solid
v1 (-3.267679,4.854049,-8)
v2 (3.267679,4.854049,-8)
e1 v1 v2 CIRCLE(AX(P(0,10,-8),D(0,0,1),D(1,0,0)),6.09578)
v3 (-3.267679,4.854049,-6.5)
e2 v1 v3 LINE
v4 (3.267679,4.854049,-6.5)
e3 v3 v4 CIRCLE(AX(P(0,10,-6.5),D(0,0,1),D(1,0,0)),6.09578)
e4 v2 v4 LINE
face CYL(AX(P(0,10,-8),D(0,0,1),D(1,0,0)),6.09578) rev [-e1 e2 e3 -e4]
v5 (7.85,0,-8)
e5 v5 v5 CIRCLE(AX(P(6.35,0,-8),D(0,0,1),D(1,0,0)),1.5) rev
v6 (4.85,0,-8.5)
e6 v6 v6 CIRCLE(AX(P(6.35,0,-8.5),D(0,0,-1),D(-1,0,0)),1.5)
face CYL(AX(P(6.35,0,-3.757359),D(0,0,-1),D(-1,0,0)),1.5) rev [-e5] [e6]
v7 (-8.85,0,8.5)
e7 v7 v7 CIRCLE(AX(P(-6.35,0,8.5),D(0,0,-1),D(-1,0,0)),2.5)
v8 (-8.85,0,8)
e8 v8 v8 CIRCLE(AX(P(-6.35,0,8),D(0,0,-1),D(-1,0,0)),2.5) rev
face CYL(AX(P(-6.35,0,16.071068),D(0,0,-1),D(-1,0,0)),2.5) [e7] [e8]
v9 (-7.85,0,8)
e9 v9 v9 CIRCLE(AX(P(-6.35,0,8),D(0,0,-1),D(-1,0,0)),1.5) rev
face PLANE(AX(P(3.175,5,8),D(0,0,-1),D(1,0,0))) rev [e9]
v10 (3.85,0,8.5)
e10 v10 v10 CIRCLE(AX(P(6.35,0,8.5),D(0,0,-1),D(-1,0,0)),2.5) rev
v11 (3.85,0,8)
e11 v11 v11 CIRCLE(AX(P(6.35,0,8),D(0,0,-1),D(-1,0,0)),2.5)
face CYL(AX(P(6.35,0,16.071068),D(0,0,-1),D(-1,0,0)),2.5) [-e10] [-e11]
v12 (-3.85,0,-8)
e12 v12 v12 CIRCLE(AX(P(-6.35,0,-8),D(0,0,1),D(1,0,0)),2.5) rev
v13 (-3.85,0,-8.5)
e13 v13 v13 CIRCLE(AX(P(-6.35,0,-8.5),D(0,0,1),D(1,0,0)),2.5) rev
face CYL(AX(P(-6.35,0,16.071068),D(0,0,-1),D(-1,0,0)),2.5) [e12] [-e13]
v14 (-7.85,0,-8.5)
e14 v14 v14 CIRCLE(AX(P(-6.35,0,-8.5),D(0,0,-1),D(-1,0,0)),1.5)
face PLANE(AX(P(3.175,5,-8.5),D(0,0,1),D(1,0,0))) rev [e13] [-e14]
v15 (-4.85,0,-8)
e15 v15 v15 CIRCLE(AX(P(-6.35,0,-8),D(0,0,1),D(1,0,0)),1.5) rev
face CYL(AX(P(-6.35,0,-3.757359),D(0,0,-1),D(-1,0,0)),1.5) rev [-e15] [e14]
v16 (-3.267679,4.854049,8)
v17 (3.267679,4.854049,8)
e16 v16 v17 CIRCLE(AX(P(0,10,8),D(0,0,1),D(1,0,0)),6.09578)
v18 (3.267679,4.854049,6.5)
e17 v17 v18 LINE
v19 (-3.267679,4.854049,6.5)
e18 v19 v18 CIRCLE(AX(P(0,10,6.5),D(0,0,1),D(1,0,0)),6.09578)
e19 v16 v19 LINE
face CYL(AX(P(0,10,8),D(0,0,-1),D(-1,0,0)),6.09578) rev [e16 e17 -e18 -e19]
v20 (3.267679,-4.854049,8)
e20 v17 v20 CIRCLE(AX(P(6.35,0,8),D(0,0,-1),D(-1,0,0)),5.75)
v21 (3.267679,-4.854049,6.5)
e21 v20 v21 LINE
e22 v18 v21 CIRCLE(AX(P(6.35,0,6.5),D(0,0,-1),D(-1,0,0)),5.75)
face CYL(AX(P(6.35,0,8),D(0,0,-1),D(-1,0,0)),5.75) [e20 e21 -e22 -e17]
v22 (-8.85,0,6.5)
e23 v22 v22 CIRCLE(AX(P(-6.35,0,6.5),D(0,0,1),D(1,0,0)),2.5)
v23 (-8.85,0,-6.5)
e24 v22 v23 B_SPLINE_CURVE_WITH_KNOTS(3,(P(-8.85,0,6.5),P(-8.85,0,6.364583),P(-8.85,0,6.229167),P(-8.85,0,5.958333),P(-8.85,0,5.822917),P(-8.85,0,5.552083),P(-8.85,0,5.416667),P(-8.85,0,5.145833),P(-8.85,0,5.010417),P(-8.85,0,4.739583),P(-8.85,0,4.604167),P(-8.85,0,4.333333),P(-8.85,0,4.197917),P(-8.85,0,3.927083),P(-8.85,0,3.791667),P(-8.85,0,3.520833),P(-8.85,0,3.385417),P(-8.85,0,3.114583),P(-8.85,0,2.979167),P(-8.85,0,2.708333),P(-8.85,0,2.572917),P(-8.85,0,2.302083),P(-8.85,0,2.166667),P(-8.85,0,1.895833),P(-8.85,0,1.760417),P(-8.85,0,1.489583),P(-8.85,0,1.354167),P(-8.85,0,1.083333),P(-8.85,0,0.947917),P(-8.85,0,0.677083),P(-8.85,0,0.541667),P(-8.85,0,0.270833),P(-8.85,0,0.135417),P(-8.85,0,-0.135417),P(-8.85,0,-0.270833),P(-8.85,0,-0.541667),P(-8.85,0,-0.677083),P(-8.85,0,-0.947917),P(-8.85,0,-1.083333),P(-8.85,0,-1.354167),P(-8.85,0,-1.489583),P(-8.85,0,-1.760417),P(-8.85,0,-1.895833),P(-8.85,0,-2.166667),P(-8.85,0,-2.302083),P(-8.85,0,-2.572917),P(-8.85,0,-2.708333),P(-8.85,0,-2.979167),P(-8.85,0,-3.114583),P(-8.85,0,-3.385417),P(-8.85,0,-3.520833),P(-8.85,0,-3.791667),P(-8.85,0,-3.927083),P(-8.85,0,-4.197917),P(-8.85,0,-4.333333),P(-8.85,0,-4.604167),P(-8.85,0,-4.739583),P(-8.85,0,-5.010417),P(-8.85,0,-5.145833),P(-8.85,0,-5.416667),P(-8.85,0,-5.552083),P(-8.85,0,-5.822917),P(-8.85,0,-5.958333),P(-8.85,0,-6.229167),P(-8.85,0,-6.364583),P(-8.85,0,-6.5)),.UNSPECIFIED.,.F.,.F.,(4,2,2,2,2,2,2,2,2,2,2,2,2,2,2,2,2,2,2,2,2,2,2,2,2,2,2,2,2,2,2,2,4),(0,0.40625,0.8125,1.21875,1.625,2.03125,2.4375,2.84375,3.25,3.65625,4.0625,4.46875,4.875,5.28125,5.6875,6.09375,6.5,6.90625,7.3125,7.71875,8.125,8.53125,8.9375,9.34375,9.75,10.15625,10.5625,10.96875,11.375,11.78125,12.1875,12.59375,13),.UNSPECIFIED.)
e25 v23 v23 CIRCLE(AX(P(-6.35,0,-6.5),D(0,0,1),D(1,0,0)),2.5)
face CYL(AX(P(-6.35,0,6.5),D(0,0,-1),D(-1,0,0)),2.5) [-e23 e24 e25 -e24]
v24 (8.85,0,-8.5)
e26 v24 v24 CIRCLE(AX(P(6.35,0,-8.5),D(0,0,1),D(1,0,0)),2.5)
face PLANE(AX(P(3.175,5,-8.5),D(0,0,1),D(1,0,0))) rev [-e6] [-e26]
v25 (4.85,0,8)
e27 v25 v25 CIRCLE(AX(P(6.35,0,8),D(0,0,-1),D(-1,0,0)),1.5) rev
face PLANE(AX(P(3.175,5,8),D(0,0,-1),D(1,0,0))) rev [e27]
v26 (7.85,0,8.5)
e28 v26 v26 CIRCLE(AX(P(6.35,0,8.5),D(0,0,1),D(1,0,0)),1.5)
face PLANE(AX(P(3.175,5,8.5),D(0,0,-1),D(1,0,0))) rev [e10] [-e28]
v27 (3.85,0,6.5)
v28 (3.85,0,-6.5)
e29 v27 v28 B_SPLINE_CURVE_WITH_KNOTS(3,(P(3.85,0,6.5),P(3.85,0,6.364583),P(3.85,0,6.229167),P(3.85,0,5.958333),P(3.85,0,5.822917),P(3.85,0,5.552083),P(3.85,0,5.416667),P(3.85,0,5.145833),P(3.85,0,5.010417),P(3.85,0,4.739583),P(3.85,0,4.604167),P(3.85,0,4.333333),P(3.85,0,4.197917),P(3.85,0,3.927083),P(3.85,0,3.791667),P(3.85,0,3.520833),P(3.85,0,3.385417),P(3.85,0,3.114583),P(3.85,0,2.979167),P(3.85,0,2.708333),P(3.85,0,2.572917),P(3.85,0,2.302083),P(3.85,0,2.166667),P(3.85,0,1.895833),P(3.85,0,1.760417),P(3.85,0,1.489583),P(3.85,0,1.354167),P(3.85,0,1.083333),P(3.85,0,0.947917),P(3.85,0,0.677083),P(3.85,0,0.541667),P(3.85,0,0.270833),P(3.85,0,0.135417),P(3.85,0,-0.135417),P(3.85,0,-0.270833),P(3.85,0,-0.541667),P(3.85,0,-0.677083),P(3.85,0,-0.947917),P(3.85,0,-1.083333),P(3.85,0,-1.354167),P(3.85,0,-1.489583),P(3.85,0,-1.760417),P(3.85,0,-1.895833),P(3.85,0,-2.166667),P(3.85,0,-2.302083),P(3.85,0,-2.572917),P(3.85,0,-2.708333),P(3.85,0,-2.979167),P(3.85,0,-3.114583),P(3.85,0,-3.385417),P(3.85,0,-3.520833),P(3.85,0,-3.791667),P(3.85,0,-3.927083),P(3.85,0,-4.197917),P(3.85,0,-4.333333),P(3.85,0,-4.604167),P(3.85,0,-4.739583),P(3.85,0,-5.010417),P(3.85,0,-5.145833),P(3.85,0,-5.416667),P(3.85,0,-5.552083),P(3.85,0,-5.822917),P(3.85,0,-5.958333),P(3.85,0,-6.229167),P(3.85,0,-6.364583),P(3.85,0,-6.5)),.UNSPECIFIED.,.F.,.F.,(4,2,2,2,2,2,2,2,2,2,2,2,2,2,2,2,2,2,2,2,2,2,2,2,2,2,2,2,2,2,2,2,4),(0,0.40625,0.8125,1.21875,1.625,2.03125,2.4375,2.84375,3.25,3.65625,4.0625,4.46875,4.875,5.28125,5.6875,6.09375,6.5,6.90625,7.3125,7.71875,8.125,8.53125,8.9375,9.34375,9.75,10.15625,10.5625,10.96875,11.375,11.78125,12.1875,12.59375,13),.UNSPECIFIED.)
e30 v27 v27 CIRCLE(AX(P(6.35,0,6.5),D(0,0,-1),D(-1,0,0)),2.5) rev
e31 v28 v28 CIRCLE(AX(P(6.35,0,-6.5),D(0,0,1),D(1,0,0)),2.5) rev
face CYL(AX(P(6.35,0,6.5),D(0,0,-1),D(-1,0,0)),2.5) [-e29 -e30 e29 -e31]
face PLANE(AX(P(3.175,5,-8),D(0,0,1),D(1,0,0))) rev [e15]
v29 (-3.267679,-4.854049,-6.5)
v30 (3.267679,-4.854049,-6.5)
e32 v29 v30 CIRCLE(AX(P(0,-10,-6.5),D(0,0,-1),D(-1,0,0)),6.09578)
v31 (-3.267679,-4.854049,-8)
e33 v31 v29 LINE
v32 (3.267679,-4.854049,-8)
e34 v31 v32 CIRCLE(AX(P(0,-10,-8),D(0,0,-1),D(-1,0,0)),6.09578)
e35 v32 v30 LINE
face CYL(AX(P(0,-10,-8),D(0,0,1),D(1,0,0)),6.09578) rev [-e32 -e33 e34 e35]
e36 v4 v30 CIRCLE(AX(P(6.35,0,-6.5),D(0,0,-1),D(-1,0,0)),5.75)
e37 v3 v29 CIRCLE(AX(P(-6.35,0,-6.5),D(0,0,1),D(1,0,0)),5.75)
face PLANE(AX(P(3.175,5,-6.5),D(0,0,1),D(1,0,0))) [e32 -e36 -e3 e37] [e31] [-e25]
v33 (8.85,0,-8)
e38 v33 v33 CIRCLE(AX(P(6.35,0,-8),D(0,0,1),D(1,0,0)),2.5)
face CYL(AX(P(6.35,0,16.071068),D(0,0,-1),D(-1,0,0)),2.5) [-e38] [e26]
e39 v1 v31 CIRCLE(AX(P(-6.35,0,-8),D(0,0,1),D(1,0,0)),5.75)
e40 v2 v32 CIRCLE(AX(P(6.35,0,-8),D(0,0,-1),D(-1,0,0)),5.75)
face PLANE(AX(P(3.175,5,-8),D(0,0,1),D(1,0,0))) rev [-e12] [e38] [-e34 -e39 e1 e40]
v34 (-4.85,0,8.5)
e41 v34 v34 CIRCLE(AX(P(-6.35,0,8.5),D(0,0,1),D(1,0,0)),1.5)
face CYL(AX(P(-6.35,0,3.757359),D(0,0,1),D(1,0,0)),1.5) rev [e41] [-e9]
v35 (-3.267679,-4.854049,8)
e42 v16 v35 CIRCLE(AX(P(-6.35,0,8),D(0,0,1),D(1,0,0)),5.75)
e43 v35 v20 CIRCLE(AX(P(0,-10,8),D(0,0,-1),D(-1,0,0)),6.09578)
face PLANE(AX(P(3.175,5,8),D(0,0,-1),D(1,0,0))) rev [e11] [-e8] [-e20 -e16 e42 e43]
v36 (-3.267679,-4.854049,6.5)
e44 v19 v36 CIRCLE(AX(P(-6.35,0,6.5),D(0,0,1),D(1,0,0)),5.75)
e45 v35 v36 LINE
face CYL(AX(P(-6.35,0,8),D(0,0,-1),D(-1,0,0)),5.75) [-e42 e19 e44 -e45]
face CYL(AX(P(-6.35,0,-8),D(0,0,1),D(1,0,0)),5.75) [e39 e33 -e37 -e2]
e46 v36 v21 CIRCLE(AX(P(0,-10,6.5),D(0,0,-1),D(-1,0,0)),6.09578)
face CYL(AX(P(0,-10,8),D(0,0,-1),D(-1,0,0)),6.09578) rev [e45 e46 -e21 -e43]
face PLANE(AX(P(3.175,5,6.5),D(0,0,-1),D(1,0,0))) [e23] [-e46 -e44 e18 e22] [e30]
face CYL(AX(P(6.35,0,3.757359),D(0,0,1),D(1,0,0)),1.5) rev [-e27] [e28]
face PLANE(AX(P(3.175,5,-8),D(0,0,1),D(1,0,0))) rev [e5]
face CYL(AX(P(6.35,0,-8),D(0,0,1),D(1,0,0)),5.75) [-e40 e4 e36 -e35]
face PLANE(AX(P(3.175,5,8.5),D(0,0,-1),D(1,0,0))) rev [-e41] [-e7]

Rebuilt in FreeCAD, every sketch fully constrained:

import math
import FreeCAD as App
import Part
import Sketcher
Q = App.Units.Quantity

doc = App.newDocument("Part")
body = doc.addObject("PartDesign::Body", "Body")

# Sketch on XY plane
sketch1 = body.newObject("Sketcher::SketchObject", "Sketch")
sketch1.AttachmentSupport = (doc.getObject("XY_Plane"), [""])
sketch1.MapMode = "FlatFace"
sketch1.addGeometry(Part.Circle(App.Vector(6.3, 0, 0), App.Vector(0, 0, 1), 2.5), False)
sketch1.addConstraint(Sketcher.Constraint("PointOnObject", 0, 3, -1))
sketch1.addConstraint(Sketcher.Constraint("Diameter", 0, Q("5 mm")))
sketch1.addConstraint(Sketcher.Constraint("DistanceX", -1, 1, 0, 3, Q("6.35 mm")))
pad1 = body.newObject("PartDesign::Pad", "Pad")
pad1.Profile = sketch1
pad1.Length = 13
pad1.Midplane = True
body2 = doc.addObject("PartDesign::Body", "Body001")

# Sketch on XY plane
sketch2 = body2.newObject("Sketcher::SketchObject", "Sketch001")
sketch2.AttachmentSupport = (doc.getObject("XY_Plane001"), [""])
sketch2.MapMode = "FlatFace"
sketch2.addGeometry(Part.Circle(App.Vector(-6.3, 0, 0), App.Vector(0, 0, 1), 2.5), False)
sketch2.addConstraint(Sketcher.Constraint("PointOnObject", 0, 3, -1))
sketch2.addConstraint(Sketcher.Constraint("Diameter", 0, Q("5 mm")))
sketch2.addConstraint(Sketcher.Constraint("DistanceX", 0, 3, -1, 1, Q("6.35 mm")))
pad2 = body2.newObject("PartDesign::Pad", "Pad001")
pad2.Profile = sketch2
pad2.Length = 13
pad2.Midplane = True
body.AllowCompound = True
doc.recompute()

boolean = body.newObject("PartDesign::Boolean", "Boolean")
boolean.Type = "Fuse"
boolean.addObjects([body2])

# Sketch on XY plane
sketch3 = body.newObject("Sketcher::SketchObject", "Sketch002")
sketch3.AttachmentSupport = (doc.getObject("XY_Plane"), [""])
sketch3.MapMode = "FlatFace"
sketch3.AttachmentOffset = App.Placement(App.Vector(0, 0, -6.5), App.Rotation())
sketch3.addGeometry(Part.ArcOfCircle(Part.Circle(App.Vector(-6, 0, 0), App.Vector(0, 0, 1), 6), math.radians(58), math.radians(302)), False)
sketch3.addGeometry(Part.ArcOfCircle(Part.Circle(App.Vector(0, -10, 0), App.Vector(0, 0, 1), 6), math.radians(58), math.radians(122)), False)
sketch3.addGeometry(Part.ArcOfCircle(Part.Circle(App.Vector(6, 0, 0), App.Vector(0, 0, 1), 6), math.radians(-122), math.radians(122)), False)
sketch3.addGeometry(Part.ArcOfCircle(Part.Circle(App.Vector(0, 10, 0), App.Vector(0, 0, 1), 6), math.radians(-122), math.radians(-58)), False)
sketch3.addConstraint(Sketcher.Constraint("Tangent", 0, 2, 1, 2))
sketch3.addConstraint(Sketcher.Constraint("Tangent", 1, 1, 2, 1))
sketch3.addConstraint(Sketcher.Constraint("Tangent", 2, 2, 3, 2))
sketch3.addConstraint(Sketcher.Constraint("Tangent", 3, 1, 0, 1))
sketch3.addConstraint(Sketcher.Constraint("Equal", 0, 2))
sketch3.addConstraint(Sketcher.Constraint("Equal", 1, 3))
sketch3.addConstraint(Sketcher.Constraint("Symmetric", 0, 3, 2, 3, -1, 1))
sketch3.addConstraint(Sketcher.Constraint("PointOnObject", 0, 3, -1))
sketch3.addConstraint(Sketcher.Constraint("Radius", 0, Q("5.75 mm")))
sketch3.addConstraint(Sketcher.Constraint("DistanceY", 1, 3, -1, 1, Q("10 mm")))
sketch3.addConstraint(Sketcher.Constraint("DistanceX", 0, 3, 2, 3, Q("12.7 mm")))
pad3 = body.newObject("PartDesign::Pad", "Pad002")
pad3.Profile = sketch3
pad3.Length = 1.5
pad3.Reversed = True
doc.recompute()

mirrored = body.newObject("PartDesign::Mirrored", "Mirrored")
mirrored.Originals = [pad3]
mirrored.MirrorPlane = (doc.getObject("XY_Plane"), [""])
body.Tip = mirrored

# Sketch on XY plane
sketch4 = body.newObject("Sketcher::SketchObject", "Sketch003")
sketch4.AttachmentSupport = (doc.getObject("XY_Plane"), [""])
sketch4.MapMode = "FlatFace"
sketch4.addGeometry(Part.Circle(App.Vector(-6.3, 0, 0), App.Vector(0, 0, 1), 2.5), False)
sketch4.addGeometry(Part.Circle(App.Vector(6.3, 0, 0), App.Vector(0, 0, 1), 2.5), False)
sketch4.addConstraint(Sketcher.Constraint("Equal", 0, 1))
sketch4.addConstraint(Sketcher.Constraint("Symmetric", 0, 3, 1, 3, -1, 1))
sketch4.addConstraint(Sketcher.Constraint("PointOnObject", 0, 3, -1))
sketch4.addConstraint(Sketcher.Constraint("Diameter", 0, Q("5 mm")))
sketch4.addConstraint(Sketcher.Constraint("DistanceX", 0, 3, 1, 3, Q("12.7 mm")))
pad4 = body.newObject("PartDesign::Pad", "Pad003")
pad4.Profile = sketch4
pad4.Type = "TwoLengths"
pad4.Length = 8.5
pad4.Length2 = 8.5

# Sketch on XY plane
sketch5 = body.newObject("Sketcher::SketchObject", "Sketch004")
sketch5.AttachmentSupport = (doc.getObject("XY_Plane"), [""])
sketch5.MapMode = "FlatFace"
sketch5.AttachmentOffset = App.Placement(App.Vector(0, 0, 8.5), App.Rotation())
sketch5.addGeometry(Part.Circle(App.Vector(-6.3, 0, 0), App.Vector(0, 0, 1), 1.5), False)
sketch5.addGeometry(Part.Circle(App.Vector(6.3, 0, 0), App.Vector(0, 0, 1), 1.5), False)
sketch5.addConstraint(Sketcher.Constraint("Equal", 0, 1))
sketch5.addConstraint(Sketcher.Constraint("Symmetric", 0, 3, 1, 3, -1, 1))
sketch5.addConstraint(Sketcher.Constraint("PointOnObject", 0, 3, -1))
sketch5.addConstraint(Sketcher.Constraint("Diameter", 0, Q("3 mm")))
sketch5.addConstraint(Sketcher.Constraint("DistanceX", 0, 3, 1, 3, Q("12.7 mm")))
pocket1 = body.newObject("PartDesign::Pocket", "Pocket")
pocket1.Profile = sketch5
pocket1.Length = 0.5

# Sketch on XY plane
sketch6 = body.newObject("Sketcher::SketchObject", "Sketch005")
sketch6.AttachmentSupport = (doc.getObject("XY_Plane"), [""])
sketch6.MapMode = "FlatFace"
sketch6.AttachmentOffset = App.Placement(App.Vector(0, 0, -8), App.Rotation())
sketch6.addGeometry(Part.Circle(App.Vector(-6.3, 0, 0), App.Vector(0, 0, 1), 1.5), False)
sketch6.addGeometry(Part.Circle(App.Vector(6.3, 0, 0), App.Vector(0, 0, 1), 1.5), False)
sketch6.addConstraint(Sketcher.Constraint("Equal", 0, 1))
sketch6.addConstraint(Sketcher.Constraint("Symmetric", 0, 3, 1, 3, -1, 1))
sketch6.addConstraint(Sketcher.Constraint("PointOnObject", 0, 3, -1))
sketch6.addConstraint(Sketcher.Constraint("Diameter", 0, Q("3 mm")))
sketch6.addConstraint(Sketcher.Constraint("DistanceX", 0, 3, 1, 3, Q("12.7 mm")))
pocket2 = body.newObject("PartDesign::Pocket", "Pocket001")
pocket2.Profile = sketch6
pocket2.Length = 0.5

doc.recompute()
